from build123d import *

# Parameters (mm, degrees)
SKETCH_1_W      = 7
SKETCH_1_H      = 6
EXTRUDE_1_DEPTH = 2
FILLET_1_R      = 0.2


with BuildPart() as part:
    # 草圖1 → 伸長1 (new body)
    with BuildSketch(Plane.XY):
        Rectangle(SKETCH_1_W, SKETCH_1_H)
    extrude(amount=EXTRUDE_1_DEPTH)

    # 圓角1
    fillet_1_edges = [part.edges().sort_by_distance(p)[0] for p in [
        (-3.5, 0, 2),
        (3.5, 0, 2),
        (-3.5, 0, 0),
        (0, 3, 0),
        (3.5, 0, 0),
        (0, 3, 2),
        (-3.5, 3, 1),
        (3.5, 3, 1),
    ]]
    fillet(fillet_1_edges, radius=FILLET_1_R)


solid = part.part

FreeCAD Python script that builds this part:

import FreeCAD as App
import Part
import Sketcher
from FreeCAD import Vector


def edges_at(feature, points):
    """Names of the edges that pass closest to the given points."""
    edges = feature.Shape.Edges
    near = lambda p: min(range(len(edges)), key=lambda i: edges[i].distToShape(Part.Vertex(*p))[0])
    return sorted({f"Edge{near(p) + 1}" for p in points})

doc = App.newDocument("Part")
body = doc.addObject("PartDesign::Body", "Body")

sketch1 = body.newObject("Sketcher::SketchObject", "Sketch")
sketch1.AttachmentSupport = (doc.getObject("XY_Plane"), [""])
sketch1.MapMode = "FlatFace"
sketch1.addGeometry(Part.LineSegment(Vector(-4, 3, 0), Vector(-4, -3, 0)), False)
sketch1.addGeometry(Part.LineSegment(Vector(-4, -3, 0), Vector(4, -3, 0)), False)
sketch1.addGeometry(Part.LineSegment(Vector(4, -3, 0), Vector(4, 3, 0)), False)
sketch1.addGeometry(Part.LineSegment(Vector(4, 3, 0), Vector(-4, 3, 0)), False)
sketch1.addConstraint(Sketcher.Constraint("Coincident", 0, 2, 1, 1))
sketch1.addConstraint(Sketcher.Constraint("Coincident", 1, 2, 2, 1))
sketch1.addConstraint(Sketcher.Constraint("Coincident", 2, 2, 3, 1))
sketch1.addConstraint(Sketcher.Constraint("Coincident", 3, 2, 0, 1))
sketch1.addConstraint(Sketcher.Constraint("Vertical", 0))
sketch1.addConstraint(Sketcher.Constraint("Horizontal", 1))
sketch1.addConstraint(Sketcher.Constraint("Vertical", 2))
sketch1.addConstraint(Sketcher.Constraint("Horizontal", 3))
sketch1.addConstraint(Sketcher.Constraint("Symmetric", 0, 2, 2, 2, -1, 1))
sketch1.addConstraint(Sketcher.Constraint("DistanceX", 1, 1, 1, 2, 7.0))
sketch1.addConstraint(Sketcher.Constraint("DistanceY", 0, 2, 0, 1, 6.0))
pad1 = body.newObject("PartDesign::Pad", "Pad")
pad1.Profile = sketch1
pad1.Length = 2
doc.recompute()

fillet = body.newObject("PartDesign::Fillet", "Fillet")
fillet.Base = (pad1, edges_at(pad1, [
    (-3.5, 0, 2),
    (3.5, 0, 2),
    (-3.5, 0, 0),
    (0, 3, 0),
    (3.5, 0, 0),
    (0, 3, 2),
    (-3.5, 3, 1),
    (3.5, 3, 1),
]))
fillet.Radius = 0.2

doc.recompute()
